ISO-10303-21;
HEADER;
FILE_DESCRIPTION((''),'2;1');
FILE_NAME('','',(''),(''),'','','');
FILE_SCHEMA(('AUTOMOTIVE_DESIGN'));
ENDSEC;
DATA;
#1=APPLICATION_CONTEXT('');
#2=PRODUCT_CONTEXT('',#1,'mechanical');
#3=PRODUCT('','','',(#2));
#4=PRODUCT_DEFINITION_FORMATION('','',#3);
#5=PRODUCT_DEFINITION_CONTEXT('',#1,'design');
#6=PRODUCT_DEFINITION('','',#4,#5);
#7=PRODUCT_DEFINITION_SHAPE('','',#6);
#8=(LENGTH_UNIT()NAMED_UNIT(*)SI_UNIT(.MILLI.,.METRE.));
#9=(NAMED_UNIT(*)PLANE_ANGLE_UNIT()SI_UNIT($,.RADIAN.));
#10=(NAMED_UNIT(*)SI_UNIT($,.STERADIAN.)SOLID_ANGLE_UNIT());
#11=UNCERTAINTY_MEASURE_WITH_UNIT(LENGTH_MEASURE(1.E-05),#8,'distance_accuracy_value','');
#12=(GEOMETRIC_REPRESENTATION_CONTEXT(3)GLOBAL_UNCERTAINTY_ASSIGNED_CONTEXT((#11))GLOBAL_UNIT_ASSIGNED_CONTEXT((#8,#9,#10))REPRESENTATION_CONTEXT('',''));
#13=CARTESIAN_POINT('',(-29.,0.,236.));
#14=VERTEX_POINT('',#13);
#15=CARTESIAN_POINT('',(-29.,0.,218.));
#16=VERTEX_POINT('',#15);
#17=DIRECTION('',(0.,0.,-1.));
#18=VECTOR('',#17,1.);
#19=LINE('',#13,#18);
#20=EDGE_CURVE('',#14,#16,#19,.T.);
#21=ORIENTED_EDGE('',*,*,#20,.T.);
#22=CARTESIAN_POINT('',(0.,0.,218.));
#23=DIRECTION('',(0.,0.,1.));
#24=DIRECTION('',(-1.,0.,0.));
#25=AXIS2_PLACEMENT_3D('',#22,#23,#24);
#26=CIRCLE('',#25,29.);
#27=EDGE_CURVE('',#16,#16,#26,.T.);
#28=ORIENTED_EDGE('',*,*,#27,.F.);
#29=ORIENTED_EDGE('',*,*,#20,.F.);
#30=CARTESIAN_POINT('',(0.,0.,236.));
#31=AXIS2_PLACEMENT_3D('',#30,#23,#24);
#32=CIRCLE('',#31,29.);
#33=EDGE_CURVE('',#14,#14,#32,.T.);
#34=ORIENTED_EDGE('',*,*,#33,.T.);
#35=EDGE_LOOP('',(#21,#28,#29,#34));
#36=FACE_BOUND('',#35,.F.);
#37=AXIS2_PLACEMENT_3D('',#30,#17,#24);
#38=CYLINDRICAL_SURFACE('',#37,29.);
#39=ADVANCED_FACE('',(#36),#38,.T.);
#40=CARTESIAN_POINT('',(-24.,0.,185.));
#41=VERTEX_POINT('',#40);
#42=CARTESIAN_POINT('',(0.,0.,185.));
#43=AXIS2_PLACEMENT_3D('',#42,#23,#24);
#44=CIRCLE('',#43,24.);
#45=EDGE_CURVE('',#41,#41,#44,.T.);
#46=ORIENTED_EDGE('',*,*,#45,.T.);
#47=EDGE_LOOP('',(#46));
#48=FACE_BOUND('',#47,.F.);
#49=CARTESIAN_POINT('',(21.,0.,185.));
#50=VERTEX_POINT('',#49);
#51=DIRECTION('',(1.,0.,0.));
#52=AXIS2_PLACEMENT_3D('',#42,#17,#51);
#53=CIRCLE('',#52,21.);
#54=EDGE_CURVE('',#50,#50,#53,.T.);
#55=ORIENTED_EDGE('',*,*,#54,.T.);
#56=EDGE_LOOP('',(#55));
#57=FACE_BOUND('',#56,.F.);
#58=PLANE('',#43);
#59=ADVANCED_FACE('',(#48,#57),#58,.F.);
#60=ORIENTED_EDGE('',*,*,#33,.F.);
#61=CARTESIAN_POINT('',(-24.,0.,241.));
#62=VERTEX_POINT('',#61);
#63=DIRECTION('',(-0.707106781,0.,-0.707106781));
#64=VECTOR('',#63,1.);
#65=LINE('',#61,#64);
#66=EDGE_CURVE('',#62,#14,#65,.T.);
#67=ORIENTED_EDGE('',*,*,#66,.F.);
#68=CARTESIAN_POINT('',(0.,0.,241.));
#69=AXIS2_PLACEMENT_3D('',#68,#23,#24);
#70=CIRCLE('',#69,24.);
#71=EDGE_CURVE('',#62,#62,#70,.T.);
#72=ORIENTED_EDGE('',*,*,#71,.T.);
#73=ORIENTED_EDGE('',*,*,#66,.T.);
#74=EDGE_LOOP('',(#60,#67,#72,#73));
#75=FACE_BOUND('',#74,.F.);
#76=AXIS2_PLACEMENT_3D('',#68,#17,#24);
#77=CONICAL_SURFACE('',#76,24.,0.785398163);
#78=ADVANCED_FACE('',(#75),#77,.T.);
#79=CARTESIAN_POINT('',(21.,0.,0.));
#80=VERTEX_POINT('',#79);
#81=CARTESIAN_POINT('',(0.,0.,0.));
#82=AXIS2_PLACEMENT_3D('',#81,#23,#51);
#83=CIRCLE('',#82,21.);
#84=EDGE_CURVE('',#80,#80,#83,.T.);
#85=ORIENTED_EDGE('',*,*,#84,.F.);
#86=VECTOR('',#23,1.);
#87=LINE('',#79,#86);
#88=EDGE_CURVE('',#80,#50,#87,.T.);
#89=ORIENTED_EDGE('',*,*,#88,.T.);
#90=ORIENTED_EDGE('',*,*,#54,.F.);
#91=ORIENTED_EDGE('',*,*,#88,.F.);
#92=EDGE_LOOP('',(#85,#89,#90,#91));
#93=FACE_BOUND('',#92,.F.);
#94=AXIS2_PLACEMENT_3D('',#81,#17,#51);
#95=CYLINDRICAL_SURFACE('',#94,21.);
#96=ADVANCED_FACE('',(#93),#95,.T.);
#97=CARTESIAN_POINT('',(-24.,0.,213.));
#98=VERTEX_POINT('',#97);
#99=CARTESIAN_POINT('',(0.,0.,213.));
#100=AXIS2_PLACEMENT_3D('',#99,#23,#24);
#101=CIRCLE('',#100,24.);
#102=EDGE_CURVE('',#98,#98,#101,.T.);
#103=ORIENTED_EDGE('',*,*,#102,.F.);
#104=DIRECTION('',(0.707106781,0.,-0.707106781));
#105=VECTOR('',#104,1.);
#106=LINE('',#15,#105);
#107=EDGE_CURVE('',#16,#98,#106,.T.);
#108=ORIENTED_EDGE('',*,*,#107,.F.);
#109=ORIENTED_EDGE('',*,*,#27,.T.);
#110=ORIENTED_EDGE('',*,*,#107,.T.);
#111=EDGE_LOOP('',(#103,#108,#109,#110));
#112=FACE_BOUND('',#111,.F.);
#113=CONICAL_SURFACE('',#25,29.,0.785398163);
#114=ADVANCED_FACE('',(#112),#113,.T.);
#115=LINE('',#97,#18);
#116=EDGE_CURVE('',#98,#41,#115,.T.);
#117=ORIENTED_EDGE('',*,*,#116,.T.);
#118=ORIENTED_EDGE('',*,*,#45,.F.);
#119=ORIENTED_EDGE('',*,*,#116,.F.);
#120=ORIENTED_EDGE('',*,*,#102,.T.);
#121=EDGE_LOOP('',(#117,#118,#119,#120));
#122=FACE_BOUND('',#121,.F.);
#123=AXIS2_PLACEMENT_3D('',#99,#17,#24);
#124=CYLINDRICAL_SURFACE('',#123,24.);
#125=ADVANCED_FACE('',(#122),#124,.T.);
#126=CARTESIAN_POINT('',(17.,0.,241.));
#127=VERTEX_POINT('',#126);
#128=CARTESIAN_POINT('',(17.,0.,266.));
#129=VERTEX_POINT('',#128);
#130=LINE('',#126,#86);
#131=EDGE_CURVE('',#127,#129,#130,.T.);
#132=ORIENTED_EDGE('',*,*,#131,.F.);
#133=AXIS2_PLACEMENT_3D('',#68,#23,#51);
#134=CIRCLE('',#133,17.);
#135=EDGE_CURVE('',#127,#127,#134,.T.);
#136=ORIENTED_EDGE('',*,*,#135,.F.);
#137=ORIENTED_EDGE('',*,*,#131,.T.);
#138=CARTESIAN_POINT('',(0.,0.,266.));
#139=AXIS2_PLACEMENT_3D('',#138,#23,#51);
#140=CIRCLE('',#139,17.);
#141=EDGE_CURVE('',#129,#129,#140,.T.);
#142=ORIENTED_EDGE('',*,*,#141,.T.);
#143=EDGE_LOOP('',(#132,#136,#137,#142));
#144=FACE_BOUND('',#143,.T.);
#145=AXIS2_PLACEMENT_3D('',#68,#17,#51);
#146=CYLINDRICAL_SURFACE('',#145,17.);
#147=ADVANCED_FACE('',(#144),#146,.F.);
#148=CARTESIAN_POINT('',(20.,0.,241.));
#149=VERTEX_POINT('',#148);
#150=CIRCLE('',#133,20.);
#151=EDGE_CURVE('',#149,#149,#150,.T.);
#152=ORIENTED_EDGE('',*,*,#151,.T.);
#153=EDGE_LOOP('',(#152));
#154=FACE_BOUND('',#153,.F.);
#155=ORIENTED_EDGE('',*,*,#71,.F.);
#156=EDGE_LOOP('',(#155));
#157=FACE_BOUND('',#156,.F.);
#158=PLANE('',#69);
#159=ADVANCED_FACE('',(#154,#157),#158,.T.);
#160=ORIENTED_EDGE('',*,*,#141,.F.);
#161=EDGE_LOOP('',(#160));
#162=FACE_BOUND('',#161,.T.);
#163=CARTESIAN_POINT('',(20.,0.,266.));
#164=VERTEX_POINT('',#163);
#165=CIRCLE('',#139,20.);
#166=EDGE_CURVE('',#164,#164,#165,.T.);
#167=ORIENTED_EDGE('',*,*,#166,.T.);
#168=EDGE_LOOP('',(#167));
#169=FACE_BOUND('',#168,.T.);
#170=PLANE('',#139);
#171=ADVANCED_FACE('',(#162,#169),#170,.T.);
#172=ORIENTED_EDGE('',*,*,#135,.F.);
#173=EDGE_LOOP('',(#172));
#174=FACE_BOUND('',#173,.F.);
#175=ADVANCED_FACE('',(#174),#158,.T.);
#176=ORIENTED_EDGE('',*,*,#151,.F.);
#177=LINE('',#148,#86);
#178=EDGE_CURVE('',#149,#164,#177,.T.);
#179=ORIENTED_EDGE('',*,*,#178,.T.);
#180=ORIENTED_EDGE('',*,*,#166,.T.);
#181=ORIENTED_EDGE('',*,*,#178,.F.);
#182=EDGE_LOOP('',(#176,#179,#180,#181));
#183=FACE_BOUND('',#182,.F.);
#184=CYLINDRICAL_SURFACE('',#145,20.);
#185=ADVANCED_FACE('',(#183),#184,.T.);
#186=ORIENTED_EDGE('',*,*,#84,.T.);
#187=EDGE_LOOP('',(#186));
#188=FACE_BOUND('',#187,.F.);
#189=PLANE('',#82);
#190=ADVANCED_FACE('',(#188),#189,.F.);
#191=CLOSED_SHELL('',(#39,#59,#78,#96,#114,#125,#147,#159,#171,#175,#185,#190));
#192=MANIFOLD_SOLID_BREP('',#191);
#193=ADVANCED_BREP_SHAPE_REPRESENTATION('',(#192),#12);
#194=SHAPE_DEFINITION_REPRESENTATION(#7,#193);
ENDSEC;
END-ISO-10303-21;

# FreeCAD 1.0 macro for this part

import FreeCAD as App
import Part
import Sketcher

V = App.Vector


def add_polygon(sketch, points):
    """Adds a closed chain of lines whose ends are joined by coincident constraints."""
    first, n = sketch.GeometryCount, len(points)
    for a, b in zip(points, points[1:] + points[:1]):
        sketch.addGeometry(Part.LineSegment(App.Vector(*a, 0), App.Vector(*b, 0)), False)
    for i in range(n):
        sketch.addConstraint(Sketcher.Constraint("Coincident", first + i, 2, first + (i + 1) % n, 1))

doc = App.newDocument("Part")
params = doc.addObject("Spreadsheet::Sheet", "Params")
for row, (alias, value) in enumerate([
    ("sketch1_diameter", "42 mm"),
    ("pad1_length", "200 mm"),
    ("sketch2_width", "24 mm"),
    ("sketch2_height", "56 mm"),
    ("sketch2_height2", "18 mm"),
    ("sketch2_height3", "28 mm"),
    ("revolution_angle", "360 deg"),
    ("sketch3_diameter", "40 mm"),
    ("sketch3_diameter2", "34 mm"),
    ("pad2_length", "25 mm"),
], start=1):
    params.set(f"A{row}", alias)
    params.set(f"B{row}", "=" + value)
    params.setAlias(f"B{row}", alias)

body = doc.addObject("PartDesign::Body", "Body")

# Sketch on XY plane
sketch1 = doc.addObject("Sketcher::SketchObject", "Sketch")
body.addObject(sketch1)
sketch1.AttachmentSupport = (doc.XY_Plane, [""])
sketch1.MapMode = "FlatFace"
sketch1.addGeometry(Part.Circle(V(0, 0, 0), V(0, 0, 1), 21), False)
sketch1.addConstraint([
    Sketcher.Constraint("Coincident", 0, 3, -1, 1),
    Sketcher.Constraint("Diameter", 0, 42.0),
])
sketch1.setExpression("Constraints[1]", "Params.sketch1_diameter")
pad1 = doc.addObject("PartDesign::Pad", "Pad")
body.addObject(pad1)
pad1.Profile = sketch1
pad1.setExpression("Length", "Params.pad1_length")

# Sketch on XZ plane
sketch2 = doc.addObject("Sketcher::SketchObject", "Sketch001")
body.addObject(sketch2)
sketch2.AttachmentSupport = (doc.XZ_Plane, [""])
sketch2.MapMode = "FlatFace"
add_polygon(sketch2, [(-24, 185), (0, 185), (0, 241), (-24, 241), (-29, 236), (-29, 218), (-24, 213)])  # lines 0-6
sketch2.addConstraint([
    Sketcher.Constraint("Horizontal", 0),
    Sketcher.Constraint("Vertical", 1),
    Sketcher.Constraint("Horizontal", 2),
    Sketcher.Constraint("Vertical", 4),
    Sketcher.Constraint("Vertical", 6),
    Sketcher.Constraint("PointOnObject", 0, 2, -2),
    Sketcher.Constraint("Perpendicular", 3, 5),
    Sketcher.Constraint("Vertical", 2, 2, 5, 2),
    Sketcher.Constraint("Equal", 3, 5),
    Sketcher.Constraint("DistanceX", 0, 1, 0, 2, 24.0),
    Sketcher.Constraint("DistanceY", 1, 1, 1, 2, 56.0),
    Sketcher.Constraint("DistanceY", 4, 2, 4, 1, 18.0),
    Sketcher.Constraint("DistanceY", 6, 2, 6, 1, 28.0),
    Sketcher.Constraint("DistanceY", -1, 1, 0, 2, 185.0),
])
sketch2.setExpression("Constraints[16]", "Params.sketch2_width")
sketch2.setExpression("Constraints[17]", "Params.sketch2_height")
sketch2.setExpression("Constraints[18]", "Params.sketch2_height2")
sketch2.setExpression("Constraints[19]", "Params.sketch2_height3")
revolution = doc.addObject("PartDesign::Revolution", "Revolution")
body.addObject(revolution)
revolution.Profile = sketch2
revolution.ReferenceAxis = (sketch2, ["V_Axis"])
revolution.setExpression("Angle", "Params.revolution_angle")

# Sketch on XY plane
sketch3 = doc.addObject("Sketcher::SketchObject", "Sketch002")
body.addObject(sketch3)
sketch3.AttachmentSupport = (doc.XY_Plane, [""])
sketch3.MapMode = "FlatFace"
sketch3.AttachmentOffset = App.Placement(V(0, 0, 241), App.Rotation())
sketch3.addGeometry([
    Part.Circle(V(0, 0, 0), V(0, 0, 1), 20),
    Part.Circle(V(0, 0, 0), V(0, 0, 1), 17),
], False)
sketch3.addConstraint([
    Sketcher.Constraint("Coincident", 0, 3, -1, 1),
    Sketcher.Constraint("Coincident", 1, 3, -1, 1),
    Sketcher.Constraint("Diameter", 0, 40.0),
    Sketcher.Constraint("Diameter", 1, 34.0),
])
sketch3.setExpression("Constraints[2]", "Params.sketch3_diameter")
sketch3.setExpression("Constraints[3]", "Params.sketch3_diameter2")
pad2 = doc.addObject("PartDesign::Pad", "Pad001")
body.addObject(pad2)
pad2.Profile = sketch3
pad2.setExpression("Length", "Params.pad2_length")

doc.recompute()
